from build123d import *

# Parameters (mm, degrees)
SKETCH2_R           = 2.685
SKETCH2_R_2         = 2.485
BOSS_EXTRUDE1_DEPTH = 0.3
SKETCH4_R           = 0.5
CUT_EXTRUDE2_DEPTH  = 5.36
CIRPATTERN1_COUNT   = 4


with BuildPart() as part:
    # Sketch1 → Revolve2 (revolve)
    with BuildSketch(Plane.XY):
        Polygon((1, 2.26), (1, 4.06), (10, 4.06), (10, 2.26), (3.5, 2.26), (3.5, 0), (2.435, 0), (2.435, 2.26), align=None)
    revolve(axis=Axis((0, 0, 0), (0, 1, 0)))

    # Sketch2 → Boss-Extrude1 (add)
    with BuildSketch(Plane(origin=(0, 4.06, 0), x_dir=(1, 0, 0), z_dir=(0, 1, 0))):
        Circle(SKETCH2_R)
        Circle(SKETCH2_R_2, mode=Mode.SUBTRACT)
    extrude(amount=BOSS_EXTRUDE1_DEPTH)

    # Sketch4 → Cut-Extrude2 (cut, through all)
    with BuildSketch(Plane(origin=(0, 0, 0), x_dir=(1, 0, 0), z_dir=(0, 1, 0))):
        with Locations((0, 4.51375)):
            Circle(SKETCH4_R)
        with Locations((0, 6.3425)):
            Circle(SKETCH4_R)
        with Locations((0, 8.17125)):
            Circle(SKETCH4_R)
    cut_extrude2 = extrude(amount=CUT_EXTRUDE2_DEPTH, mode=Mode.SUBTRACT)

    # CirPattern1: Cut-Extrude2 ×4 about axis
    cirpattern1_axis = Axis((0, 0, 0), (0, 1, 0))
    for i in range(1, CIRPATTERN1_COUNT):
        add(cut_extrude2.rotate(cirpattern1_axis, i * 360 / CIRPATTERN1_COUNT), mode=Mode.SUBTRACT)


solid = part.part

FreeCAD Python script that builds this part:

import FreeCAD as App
import Part
import Sketcher


def add_polygon(sketch, points):
    """Adds a closed chain of lines whose ends are joined by coincident constraints."""
    first, n = sketch.GeometryCount, len(points)
    for a, b in zip(points, points[1:] + points[:1]):
        sketch.addGeometry(Part.LineSegment(App.Vector(*a, 0), App.Vector(*b, 0)), False)
    for i in range(n):
        sketch.addConstraint(Sketcher.Constraint("Coincident", first + i, 2, first + (i + 1) % n, 1))

doc = App.newDocument("Part")
params = doc.addObject("Spreadsheet::Sheet", "Params")
for row, (alias, value) in enumerate([
    ("sketch1_width", "9 mm"),
    ("sketch1_width2", "6.5 mm"),
    ("sketch1_height", "1.8 mm"),
    ("sketch1_height2", "2.26 mm"),
    ("revolution_angle", "360 deg"),
    ("sketch2_diameter", "5.37 mm"),
    ("sketch2_diameter2", "4.97 mm"),
    ("pad1_length", "0.3 mm"),
    ("sketch3_diameter", "1 mm"),
], start=1):
    params.set(f"A{row}", alias)
    params.set(f"B{row}", "=" + value)
    params.setAlias(f"B{row}", alias)

body = doc.addObject("PartDesign::Body", "Body")

sketch1 = body.newObject("Sketcher::SketchObject", "Sketch")
sketch1.AttachmentSupport = (doc.getObject("XY_Plane"), [""])
sketch1.MapMode = "FlatFace"
add_polygon(sketch1, [(1, 4.1), (1, 2.3), (2.4, 2.3), (2.4, 0), (3.5, 0), (3.5, 2.3), (10, 2.3), (10, 4.1)])
sketch1.addConstraint([
    Sketcher.Constraint("Vertical", 0),
    Sketcher.Constraint("Horizontal", 1),
    Sketcher.Constraint("Vertical", 2),
    Sketcher.Constraint("Horizontal", 3),
    Sketcher.Constraint("Vertical", 4),
    Sketcher.Constraint("Horizontal", 5),
    Sketcher.Constraint("Vertical", 6),
    Sketcher.Constraint("Horizontal", 7),
    Sketcher.Constraint("PointOnObject", 2, 2, -1),
    Sketcher.Constraint("Horizontal", 1, 2, 4, 2),
    Sketcher.Constraint("DistanceX", 7, 2, 7, 1, 9.0),
    Sketcher.Constraint("DistanceX", 5, 1, 5, 2, 6.5),
    Sketcher.Constraint("DistanceY", 0, 2, 0, 1, 1.8),
    Sketcher.Constraint("DistanceX", -1, 1, 0, 2, 1.0),
    Sketcher.Constraint("DistanceY", 2, 2, 2, 1, 2.26),
    Sketcher.Constraint("DistanceX", 1, 1, 1, 2, 1.435),
])
sketch1.setExpression("Constraints[18]", "Params.sketch1_width")
sketch1.setExpression("Constraints[19]", "Params.sketch1_width2")
sketch1.setExpression("Constraints[20]", "Params.sketch1_height")
sketch1.setExpression("Constraints[22]", "Params.sketch1_height2")
revolution = body.newObject("PartDesign::Revolution", "Revolution")
revolution.Profile = sketch1
revolution.ReferenceAxis = (sketch1, ["V_Axis"])
revolution.setExpression("Angle", "Params.revolution_angle")

sketch2 = body.newObject("Sketcher::SketchObject", "Sketch001")
sketch2.AttachmentSupport = (doc.getObject("XZ_Plane"), [""])
sketch2.MapMode = "FlatFace"
sketch2.AttachmentOffset = App.Placement(App.Vector(0, 0, -4.06), App.Rotation())
sketch2.addGeometry([
    Part.Circle(App.Vector(0, 0, 0), App.Vector(0, 0, 1), 2.7),
    Part.Circle(App.Vector(0, 0, 0), App.Vector(0, 0, 1), 2.5),
], False)
sketch2.addConstraint([
    Sketcher.Constraint("Coincident", 0, 3, -1, 1),
    Sketcher.Constraint("Coincident", 1, 3, -1, 1),
    Sketcher.Constraint("Diameter", 0, 5.37),
    Sketcher.Constraint("Diameter", 1, 4.97),
])
sketch2.setExpression("Constraints[2]", "Params.sketch2_diameter")
sketch2.setExpression("Constraints[3]", "Params.sketch2_diameter2")
pad1 = body.newObject("PartDesign::Pad", "Pad")
pad1.Profile = sketch2
pad1.setExpression("Length", "Params.pad1_length")
pad1.Reversed = True

sketch3 = body.newObject("Sketcher::SketchObject", "Sketch002")
sketch3.AttachmentSupport = (doc.getObject("XZ_Plane"), [""])
sketch3.MapMode = "FlatFace"
sketch3.addGeometry([
    Part.Circle(App.Vector(0, -4.5, 0), App.Vector(0, 0, 1), 0.5),
    Part.Circle(App.Vector(0, -6.3, 0), App.Vector(0, 0, 1), 0.5),
    Part.Circle(App.Vector(0, -8.2, 0), App.Vector(0, 0, 1), 0.5),
], False)
sketch3.addConstraint([
    Sketcher.Constraint("Equal", 0, 1),
    Sketcher.Constraint("Equal", 1, 2),
    Sketcher.Constraint("PointOnObject", 0, 3, -2),
    Sketcher.Constraint("PointOnObject", 1, 3, -2),
    Sketcher.Constraint("PointOnObject", 2, 3, -2),
    Sketcher.Constraint("Diameter", 0, 1.0),
    Sketcher.Constraint("DistanceY", 1, 3, -1, 1, 6.3425),
    Sketcher.Constraint("DistanceY", 2, 3, 0, 3, 3.6575),
    Sketcher.Constraint("DistanceY", 0, 3, -1, 1, 4.51375),
])
sketch3.setExpression("Constraints[5]", "Params.sketch3_diameter")
pocket1 = body.newObject("PartDesign::Pocket", "Pocket")
pocket1.Profile = sketch3
pocket1.Type = "ThroughAll"
doc.recompute()

polarpattern = body.newObject("PartDesign::PolarPattern", "PolarPattern")
polarpattern.Originals = [pocket1]
polarpattern.Axis = (doc.getObject("Y_Axis"), [""])
polarpattern.Angle = 360
polarpattern.Occurrences = 4
body.Tip = polarpattern

doc.recompute()
